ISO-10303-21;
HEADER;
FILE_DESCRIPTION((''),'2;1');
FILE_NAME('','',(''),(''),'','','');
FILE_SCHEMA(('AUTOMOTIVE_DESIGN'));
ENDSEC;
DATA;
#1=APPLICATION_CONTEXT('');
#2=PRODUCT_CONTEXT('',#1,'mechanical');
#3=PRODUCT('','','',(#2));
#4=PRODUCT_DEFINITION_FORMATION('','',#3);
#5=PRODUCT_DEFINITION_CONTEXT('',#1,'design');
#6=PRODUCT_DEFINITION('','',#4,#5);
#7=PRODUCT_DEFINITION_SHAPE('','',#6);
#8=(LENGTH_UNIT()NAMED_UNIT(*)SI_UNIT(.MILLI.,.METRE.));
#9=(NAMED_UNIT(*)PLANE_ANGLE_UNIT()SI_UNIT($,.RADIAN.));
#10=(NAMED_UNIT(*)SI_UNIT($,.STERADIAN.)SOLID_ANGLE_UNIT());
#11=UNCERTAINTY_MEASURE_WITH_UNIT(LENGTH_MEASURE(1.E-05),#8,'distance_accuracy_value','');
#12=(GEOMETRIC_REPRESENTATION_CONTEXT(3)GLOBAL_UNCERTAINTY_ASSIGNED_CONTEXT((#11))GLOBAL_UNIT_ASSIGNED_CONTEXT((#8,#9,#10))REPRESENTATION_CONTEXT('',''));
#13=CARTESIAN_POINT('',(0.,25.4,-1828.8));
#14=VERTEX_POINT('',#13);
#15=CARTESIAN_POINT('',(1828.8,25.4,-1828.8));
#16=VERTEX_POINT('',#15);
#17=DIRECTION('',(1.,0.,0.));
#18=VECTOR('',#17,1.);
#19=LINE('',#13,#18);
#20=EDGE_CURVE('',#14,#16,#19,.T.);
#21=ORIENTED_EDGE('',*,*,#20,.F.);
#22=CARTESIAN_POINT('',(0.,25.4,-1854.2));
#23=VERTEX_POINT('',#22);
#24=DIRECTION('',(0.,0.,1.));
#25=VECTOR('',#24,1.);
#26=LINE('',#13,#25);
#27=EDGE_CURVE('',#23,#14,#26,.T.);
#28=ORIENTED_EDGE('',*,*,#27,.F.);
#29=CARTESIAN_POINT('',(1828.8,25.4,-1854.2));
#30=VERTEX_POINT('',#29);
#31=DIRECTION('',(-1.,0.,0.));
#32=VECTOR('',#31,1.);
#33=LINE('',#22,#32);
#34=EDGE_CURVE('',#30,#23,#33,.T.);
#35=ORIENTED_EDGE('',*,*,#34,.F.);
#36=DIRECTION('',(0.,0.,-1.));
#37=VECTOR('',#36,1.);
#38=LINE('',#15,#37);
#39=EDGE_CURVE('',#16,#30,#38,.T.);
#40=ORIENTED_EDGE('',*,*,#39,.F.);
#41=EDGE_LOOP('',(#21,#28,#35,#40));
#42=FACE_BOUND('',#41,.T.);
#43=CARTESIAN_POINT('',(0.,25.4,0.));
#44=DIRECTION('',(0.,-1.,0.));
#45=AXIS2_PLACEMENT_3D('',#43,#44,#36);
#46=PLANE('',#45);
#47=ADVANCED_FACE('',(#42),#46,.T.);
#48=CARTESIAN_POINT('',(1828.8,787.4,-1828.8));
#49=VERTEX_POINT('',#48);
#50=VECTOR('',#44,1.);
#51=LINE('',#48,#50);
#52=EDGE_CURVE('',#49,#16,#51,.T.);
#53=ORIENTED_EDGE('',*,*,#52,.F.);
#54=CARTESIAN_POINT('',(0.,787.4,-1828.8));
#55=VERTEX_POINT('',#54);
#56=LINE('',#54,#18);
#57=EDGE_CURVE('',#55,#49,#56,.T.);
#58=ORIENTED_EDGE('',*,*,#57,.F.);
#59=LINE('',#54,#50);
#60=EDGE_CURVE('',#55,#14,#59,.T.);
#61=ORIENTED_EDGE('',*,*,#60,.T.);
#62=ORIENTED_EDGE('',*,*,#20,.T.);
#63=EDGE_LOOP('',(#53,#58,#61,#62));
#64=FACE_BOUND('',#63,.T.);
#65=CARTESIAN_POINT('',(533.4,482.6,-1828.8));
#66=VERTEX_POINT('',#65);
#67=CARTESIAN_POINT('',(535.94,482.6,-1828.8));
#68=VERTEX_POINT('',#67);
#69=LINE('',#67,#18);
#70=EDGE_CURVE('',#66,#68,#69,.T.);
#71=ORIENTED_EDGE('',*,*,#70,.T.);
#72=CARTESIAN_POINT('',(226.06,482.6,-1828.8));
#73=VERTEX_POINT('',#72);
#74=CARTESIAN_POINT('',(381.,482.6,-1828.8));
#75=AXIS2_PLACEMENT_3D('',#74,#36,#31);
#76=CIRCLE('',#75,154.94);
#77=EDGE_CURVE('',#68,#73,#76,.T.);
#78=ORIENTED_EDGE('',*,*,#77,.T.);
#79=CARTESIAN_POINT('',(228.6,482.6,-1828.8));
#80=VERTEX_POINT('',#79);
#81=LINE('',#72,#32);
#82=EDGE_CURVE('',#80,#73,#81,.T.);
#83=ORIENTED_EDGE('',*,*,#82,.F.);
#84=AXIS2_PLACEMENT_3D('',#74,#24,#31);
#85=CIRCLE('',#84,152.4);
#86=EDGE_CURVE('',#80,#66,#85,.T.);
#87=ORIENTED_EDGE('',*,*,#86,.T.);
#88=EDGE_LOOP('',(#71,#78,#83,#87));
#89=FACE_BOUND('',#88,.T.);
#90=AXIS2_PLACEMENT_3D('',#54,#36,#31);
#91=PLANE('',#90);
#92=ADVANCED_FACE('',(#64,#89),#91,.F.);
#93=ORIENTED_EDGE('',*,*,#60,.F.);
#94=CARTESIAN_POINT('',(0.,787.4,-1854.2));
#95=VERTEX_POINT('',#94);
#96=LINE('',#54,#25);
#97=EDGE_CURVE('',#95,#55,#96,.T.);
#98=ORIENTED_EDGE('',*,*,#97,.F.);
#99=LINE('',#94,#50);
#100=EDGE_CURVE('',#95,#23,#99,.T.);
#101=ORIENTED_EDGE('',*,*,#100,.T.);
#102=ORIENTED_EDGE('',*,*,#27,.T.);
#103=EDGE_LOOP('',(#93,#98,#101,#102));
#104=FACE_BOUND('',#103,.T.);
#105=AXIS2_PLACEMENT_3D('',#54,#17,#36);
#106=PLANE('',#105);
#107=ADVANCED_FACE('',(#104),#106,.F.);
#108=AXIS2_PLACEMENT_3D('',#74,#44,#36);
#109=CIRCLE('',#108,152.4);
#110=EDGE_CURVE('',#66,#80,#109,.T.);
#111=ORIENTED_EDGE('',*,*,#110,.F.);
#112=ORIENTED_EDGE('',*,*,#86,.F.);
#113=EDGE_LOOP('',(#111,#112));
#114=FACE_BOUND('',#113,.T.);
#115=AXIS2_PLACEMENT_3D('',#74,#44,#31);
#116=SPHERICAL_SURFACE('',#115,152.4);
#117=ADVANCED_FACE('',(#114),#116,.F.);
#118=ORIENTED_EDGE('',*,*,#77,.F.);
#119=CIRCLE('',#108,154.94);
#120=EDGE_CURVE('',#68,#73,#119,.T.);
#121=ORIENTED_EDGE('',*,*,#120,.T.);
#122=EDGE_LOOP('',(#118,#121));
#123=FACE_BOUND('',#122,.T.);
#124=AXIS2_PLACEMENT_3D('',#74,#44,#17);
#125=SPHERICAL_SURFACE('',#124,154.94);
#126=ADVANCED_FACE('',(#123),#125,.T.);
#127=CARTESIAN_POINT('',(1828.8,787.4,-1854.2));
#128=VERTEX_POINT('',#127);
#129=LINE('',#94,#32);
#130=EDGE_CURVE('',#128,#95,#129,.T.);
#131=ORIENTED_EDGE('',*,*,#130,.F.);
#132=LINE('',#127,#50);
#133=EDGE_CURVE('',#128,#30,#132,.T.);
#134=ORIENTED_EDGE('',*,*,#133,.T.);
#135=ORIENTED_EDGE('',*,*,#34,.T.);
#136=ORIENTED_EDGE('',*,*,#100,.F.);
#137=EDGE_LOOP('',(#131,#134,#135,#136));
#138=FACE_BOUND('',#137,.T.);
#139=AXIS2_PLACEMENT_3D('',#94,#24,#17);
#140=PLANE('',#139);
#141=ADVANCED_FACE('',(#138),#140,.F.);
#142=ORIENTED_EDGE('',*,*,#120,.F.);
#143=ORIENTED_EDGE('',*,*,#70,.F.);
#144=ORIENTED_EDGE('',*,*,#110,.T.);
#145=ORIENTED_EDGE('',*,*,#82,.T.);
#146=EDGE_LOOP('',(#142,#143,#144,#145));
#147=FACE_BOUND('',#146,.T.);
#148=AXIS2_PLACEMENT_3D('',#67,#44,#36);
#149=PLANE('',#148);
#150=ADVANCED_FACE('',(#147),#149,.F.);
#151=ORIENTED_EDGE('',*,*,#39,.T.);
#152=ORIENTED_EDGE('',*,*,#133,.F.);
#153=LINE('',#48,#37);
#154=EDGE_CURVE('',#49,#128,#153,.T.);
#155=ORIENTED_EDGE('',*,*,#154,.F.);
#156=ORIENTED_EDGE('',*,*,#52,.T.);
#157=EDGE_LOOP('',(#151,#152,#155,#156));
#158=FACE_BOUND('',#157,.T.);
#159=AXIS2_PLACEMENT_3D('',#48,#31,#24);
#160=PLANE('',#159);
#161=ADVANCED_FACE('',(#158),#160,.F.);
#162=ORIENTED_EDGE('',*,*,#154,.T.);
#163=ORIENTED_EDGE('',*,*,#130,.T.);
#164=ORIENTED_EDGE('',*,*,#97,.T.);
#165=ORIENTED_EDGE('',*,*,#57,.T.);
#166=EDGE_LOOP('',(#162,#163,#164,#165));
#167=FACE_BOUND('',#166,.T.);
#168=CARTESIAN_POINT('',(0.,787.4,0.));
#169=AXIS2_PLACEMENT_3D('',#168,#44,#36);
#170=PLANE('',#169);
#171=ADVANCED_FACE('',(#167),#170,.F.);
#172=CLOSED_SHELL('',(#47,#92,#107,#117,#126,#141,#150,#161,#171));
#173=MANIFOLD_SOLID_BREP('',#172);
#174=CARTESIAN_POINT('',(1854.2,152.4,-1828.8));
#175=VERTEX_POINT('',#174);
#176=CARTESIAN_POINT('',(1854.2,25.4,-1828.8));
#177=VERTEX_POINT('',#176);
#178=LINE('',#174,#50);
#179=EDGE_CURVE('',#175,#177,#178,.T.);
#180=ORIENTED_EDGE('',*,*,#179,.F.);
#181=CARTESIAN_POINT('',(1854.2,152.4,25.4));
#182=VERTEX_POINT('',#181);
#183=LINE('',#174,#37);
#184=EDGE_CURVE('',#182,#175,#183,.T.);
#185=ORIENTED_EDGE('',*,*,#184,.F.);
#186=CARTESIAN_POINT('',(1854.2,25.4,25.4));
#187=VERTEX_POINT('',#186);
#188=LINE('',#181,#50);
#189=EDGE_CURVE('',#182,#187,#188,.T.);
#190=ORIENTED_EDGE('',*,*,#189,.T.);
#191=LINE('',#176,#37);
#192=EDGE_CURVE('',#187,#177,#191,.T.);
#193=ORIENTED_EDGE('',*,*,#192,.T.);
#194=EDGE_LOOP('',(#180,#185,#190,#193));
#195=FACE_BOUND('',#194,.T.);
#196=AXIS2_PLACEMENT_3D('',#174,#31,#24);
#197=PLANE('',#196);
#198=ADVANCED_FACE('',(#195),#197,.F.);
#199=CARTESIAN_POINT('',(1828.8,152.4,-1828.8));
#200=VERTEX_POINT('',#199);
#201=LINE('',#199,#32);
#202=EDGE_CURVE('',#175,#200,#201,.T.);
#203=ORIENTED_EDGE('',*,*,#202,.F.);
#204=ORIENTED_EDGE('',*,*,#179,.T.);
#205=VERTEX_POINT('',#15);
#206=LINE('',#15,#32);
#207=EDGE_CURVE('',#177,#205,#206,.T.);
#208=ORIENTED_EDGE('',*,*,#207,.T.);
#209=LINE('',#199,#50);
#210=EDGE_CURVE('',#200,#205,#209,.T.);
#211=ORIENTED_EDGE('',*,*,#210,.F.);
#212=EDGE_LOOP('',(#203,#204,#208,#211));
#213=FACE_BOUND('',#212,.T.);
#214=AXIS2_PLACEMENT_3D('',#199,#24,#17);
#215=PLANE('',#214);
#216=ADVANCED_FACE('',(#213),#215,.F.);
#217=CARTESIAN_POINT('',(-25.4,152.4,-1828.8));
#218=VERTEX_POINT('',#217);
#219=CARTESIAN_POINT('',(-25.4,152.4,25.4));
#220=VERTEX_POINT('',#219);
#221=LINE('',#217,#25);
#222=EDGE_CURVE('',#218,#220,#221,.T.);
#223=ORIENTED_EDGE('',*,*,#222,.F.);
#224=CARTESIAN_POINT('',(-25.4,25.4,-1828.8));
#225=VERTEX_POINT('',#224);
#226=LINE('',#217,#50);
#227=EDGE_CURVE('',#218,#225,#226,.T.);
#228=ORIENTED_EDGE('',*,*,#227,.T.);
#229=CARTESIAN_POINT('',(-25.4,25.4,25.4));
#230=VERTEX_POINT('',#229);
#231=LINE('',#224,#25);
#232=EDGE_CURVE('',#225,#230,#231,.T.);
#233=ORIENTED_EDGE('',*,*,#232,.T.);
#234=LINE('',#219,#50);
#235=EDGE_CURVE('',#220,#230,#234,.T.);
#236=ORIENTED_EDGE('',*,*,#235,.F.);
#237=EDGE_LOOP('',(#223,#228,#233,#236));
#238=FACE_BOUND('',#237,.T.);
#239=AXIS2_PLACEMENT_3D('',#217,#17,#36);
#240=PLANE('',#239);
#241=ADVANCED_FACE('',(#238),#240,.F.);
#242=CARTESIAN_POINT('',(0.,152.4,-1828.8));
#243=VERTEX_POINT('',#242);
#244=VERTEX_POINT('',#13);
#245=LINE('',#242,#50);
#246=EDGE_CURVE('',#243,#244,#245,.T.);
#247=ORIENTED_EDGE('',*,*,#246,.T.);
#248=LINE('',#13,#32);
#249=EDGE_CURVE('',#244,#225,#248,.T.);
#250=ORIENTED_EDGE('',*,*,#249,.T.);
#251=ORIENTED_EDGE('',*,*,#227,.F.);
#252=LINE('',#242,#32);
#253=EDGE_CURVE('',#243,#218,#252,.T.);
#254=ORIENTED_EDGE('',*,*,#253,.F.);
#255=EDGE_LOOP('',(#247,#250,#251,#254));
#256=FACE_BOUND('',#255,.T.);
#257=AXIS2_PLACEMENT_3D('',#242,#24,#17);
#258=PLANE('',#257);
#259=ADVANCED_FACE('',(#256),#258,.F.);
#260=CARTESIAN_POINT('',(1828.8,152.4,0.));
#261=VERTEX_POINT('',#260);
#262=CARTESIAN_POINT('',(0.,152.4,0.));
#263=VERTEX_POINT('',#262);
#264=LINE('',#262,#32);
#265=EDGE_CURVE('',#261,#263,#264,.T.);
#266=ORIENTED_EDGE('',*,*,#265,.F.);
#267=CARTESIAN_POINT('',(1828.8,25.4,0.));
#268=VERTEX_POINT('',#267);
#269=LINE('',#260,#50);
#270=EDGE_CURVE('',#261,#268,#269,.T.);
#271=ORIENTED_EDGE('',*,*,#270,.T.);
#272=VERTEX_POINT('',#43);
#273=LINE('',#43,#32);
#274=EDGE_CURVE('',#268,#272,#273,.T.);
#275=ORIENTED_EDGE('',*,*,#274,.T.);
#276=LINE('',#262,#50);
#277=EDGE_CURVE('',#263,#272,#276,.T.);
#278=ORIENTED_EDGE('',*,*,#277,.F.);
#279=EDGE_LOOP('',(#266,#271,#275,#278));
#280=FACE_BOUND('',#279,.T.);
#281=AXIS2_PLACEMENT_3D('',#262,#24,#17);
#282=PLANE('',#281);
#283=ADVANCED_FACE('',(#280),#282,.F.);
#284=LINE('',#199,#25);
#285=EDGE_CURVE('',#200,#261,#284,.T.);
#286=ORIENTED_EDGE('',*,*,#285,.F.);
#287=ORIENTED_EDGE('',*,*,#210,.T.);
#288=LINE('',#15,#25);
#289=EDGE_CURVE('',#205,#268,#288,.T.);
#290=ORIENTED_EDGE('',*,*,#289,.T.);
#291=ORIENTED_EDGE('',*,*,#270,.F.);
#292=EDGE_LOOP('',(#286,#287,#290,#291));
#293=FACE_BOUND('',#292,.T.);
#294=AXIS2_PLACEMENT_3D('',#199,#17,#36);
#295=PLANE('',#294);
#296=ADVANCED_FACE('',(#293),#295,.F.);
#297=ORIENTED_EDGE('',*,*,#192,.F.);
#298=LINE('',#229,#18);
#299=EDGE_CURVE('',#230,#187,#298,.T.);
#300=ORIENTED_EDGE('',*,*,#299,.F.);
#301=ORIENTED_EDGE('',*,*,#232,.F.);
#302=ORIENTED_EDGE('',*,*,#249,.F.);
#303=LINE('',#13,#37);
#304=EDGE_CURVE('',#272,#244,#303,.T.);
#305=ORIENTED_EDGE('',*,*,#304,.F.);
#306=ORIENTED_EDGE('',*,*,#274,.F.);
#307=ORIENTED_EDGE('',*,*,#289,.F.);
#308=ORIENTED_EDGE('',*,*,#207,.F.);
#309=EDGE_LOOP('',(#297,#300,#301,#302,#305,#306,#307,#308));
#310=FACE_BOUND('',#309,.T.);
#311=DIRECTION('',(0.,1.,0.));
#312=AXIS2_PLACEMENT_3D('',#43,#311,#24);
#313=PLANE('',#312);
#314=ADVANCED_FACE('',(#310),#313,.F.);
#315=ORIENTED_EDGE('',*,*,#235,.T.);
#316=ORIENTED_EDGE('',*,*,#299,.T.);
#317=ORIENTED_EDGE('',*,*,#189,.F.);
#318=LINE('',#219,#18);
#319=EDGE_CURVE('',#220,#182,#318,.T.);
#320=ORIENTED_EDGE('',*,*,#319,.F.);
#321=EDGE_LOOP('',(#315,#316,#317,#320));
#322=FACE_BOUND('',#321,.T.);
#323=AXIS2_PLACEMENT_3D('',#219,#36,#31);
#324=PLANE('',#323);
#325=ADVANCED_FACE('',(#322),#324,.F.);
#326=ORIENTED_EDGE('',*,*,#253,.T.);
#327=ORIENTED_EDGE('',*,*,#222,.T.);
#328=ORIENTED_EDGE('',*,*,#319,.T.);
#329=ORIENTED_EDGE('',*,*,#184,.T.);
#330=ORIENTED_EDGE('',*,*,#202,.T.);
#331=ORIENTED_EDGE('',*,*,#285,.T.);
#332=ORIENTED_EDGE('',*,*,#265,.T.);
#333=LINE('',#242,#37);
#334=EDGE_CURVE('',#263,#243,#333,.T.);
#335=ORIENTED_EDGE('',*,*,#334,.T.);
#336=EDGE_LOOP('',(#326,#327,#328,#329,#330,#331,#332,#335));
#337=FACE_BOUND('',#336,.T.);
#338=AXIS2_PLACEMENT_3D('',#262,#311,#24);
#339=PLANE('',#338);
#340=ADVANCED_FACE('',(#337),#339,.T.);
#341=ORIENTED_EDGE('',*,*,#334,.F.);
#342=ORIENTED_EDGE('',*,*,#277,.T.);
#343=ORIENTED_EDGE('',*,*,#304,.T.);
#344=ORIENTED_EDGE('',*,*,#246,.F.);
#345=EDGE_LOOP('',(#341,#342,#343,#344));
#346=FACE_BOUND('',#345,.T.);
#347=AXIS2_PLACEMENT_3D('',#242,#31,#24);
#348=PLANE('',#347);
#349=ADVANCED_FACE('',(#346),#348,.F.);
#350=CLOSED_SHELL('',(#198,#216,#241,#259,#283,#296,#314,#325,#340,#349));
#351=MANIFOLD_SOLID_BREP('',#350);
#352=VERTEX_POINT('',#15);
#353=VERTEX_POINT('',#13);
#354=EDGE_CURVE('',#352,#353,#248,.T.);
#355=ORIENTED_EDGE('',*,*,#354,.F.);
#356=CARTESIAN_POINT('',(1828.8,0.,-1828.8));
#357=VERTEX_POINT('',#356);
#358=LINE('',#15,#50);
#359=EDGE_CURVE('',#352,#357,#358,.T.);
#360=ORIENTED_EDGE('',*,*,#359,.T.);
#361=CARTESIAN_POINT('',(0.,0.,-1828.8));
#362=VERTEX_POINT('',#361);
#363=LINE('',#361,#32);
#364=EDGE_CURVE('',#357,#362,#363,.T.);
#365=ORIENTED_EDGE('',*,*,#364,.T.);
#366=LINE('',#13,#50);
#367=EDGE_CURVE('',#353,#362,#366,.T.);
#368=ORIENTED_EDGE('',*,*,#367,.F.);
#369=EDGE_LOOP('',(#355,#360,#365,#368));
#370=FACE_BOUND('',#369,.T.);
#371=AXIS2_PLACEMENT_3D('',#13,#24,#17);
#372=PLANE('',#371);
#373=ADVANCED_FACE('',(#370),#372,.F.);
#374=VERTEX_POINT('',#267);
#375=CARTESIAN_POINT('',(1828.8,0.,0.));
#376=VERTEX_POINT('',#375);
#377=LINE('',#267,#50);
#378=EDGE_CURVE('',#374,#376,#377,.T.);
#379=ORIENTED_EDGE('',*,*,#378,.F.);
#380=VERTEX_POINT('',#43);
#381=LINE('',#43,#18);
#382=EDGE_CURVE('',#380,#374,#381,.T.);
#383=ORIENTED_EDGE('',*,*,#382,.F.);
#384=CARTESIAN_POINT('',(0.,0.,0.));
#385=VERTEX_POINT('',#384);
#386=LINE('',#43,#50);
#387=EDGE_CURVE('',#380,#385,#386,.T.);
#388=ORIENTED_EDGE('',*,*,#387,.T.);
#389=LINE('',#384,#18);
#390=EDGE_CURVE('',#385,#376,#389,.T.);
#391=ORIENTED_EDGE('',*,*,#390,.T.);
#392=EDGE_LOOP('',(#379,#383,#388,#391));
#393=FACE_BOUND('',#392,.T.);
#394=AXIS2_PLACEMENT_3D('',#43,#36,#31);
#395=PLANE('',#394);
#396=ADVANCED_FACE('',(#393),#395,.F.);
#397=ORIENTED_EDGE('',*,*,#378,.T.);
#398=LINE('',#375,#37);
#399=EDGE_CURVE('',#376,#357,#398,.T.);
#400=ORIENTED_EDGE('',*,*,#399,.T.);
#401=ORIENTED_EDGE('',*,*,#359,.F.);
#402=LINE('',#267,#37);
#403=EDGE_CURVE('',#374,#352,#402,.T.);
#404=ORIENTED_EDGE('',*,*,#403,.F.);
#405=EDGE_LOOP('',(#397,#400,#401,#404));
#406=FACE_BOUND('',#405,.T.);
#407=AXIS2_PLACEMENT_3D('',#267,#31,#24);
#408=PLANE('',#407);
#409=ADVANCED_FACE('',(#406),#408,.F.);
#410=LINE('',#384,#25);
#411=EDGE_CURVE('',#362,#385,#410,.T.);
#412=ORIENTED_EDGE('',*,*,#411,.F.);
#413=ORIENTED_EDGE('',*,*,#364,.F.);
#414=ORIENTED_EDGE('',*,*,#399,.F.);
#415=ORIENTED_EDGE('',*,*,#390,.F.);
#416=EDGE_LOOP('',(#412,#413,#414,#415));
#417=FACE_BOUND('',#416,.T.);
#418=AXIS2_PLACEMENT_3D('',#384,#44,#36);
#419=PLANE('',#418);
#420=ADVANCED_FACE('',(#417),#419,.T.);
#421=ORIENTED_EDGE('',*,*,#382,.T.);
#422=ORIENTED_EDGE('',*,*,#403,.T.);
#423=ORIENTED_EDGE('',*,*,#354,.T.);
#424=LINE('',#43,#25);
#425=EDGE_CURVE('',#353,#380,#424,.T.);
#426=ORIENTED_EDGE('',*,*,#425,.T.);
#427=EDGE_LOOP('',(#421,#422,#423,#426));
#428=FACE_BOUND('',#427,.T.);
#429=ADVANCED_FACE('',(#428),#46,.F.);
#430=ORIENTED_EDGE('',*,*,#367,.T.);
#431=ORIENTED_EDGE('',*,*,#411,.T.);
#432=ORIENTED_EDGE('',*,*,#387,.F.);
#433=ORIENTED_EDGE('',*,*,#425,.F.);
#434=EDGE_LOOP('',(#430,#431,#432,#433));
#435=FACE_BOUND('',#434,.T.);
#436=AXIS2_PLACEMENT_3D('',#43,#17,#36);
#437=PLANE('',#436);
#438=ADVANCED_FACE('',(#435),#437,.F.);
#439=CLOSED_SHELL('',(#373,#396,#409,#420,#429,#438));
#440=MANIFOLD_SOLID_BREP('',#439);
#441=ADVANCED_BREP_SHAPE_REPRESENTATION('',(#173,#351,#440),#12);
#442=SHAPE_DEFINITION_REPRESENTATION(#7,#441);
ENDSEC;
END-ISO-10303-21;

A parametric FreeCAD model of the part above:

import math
import FreeCAD as App
import Part
import Sketcher
from FreeCAD import Vector
Q = App.Units.Quantity


def add_polygon(sketch, points):
    """Adds a closed chain of lines whose ends are joined by coincident constraints."""
    first, n = sketch.GeometryCount, len(points)
    for a, b in zip(points, points[1:] + points[:1]):
        sketch.addGeometry(Part.LineSegment(App.Vector(*a, 0), App.Vector(*b, 0)), False)
    for i in range(n):
        sketch.addConstraint(Sketcher.Constraint("Coincident", first + i, 2, first + (i + 1) % n, 1))

doc = App.newDocument("Part")
body = doc.addObject("PartDesign::Body", "Body")

sketch1 = doc.addObject("Sketcher::SketchObject", "Sketch")
body.addObject(sketch1)
sketch1.AttachmentSupport = (doc.XZ_Plane, [""])
sketch1.MapMode = "FlatFace"
add_polygon(sketch1, [(0, -1829), (0, 0), (1829, 0), (1829, -1829)])
sketch1.addConstraint([
    Sketcher.Constraint("Vertical", 0),
    Sketcher.Constraint("Horizontal", 1),
    Sketcher.Constraint("Vertical", 2),
    Sketcher.Constraint("Horizontal", 3),
    Sketcher.Constraint("Coincident", 0, 2, -1, 1),
    Sketcher.Constraint("Equal", 3, 0),
    Sketcher.Constraint("DistanceX", 1, 1, 1, 2, Q("72 in")),
])
pad1 = doc.addObject("PartDesign::Pad", "Pad")
body.addObject(pad1)
pad1.Profile = sketch1
pad1.Length = Q("1 in")
pad1.Reversed = True
body2 = doc.addObject("PartDesign::Body", "Body001")

sketch2 = doc.addObject("Sketcher::SketchObject", "Sketch001")
body2.addObject(sketch2)
sketch2.AttachmentSupport = (doc.getObject("XZ_Plane001"), [""])
sketch2.MapMode = "FlatFace"
sketch2.AttachmentOffset = App.Placement(Vector(0, 0, -1 * 25.4), App.Rotation())
add_polygon(sketch2, [(0, -1854), (0, -1829), (1829, -1829), (1829, -1854)])
sketch2.addConstraint([
    Sketcher.Constraint("Vertical", 0),
    Sketcher.Constraint("Horizontal", 1),
    Sketcher.Constraint("Vertical", 2),
    Sketcher.Constraint("Horizontal", 3),
    Sketcher.Constraint("PointOnObject", 0, 2, -2),
    Sketcher.Constraint("DistanceX", 1, 1, 1, 2, Q("72 in")),
    Sketcher.Constraint("DistanceY", 0, 1, 0, 2, Q("1 in")),
    Sketcher.Constraint("DistanceY", 0, 2, -1, 1, Q("72 in")),
])
pad2 = doc.addObject("PartDesign::Pad", "Pad001")
body2.addObject(pad2)
pad2.Profile = sketch2
pad2.Length = Q("30 in")
pad2.Reversed = True

sketch3 = doc.addObject("Sketcher::SketchObject", "Sketch002")
body2.addObject(sketch3)
sketch3.AttachmentSupport = (doc.getObject("XY_Plane001"), [""])
sketch3.MapMode = "FlatFace"
sketch3.AttachmentOffset = App.Placement(Vector(0, 0, -72 * 25.4), App.Rotation())
sketch3.addGeometry([
    Part.LineSegment(Vector(228.6, 482.6, 0), Vector(226.1, 482.6, 0)),
    Part.ArcOfCircle(Part.Circle(Vector(381, 482.6, 0), Vector(0, 0, 1), 154.9), math.radians(180), math.radians(270)),
    Part.LineSegment(Vector(381, 327.7, 0), Vector(381, 330.2, 0)),
    Part.ArcOfCircle(Part.Circle(Vector(381, 482.6, 0), Vector(0, 0, 1), 152.4), math.radians(180), math.radians(270)),
], False)
sketch3.addGeometry(Part.LineSegment(Vector(381, 327.7, 0), Vector(381, 482.6, 0)), True)
sketch3.addConstraint([
    Sketcher.Constraint("Coincident", 0, 2, 1, 1),
    Sketcher.Constraint("Coincident", 1, 2, 2, 1),
    Sketcher.Constraint("Coincident", 2, 2, 3, 2),
    Sketcher.Constraint("Coincident", 3, 1, 0, 1),
    Sketcher.Constraint("Horizontal", 0),
    Sketcher.Constraint("Vertical", 2),
    Sketcher.Constraint("Vertical", 4),
    Sketcher.Constraint("Coincident", 3, 3, 1, 3),
    Sketcher.Constraint("Coincident", 4, 1, 1, 2),
    Sketcher.Constraint("Coincident", 4, 2, 1, 3),
    Sketcher.Constraint("Horizontal", 3, 3, 0, 2),
    Sketcher.Constraint("Radius", 3, Q("6 in")),
    Sketcher.Constraint("Radius", 1, Q("6.1 in")),
    Sketcher.Constraint("DistanceX", -1, 1, 1, 3, Q("15 in")),
    Sketcher.Constraint("DistanceY", -1, 1, 1, 3, Q("19 in")),
])
revolution = doc.addObject("PartDesign::Revolution", "Revolution")
body2.addObject(revolution)
revolution.Profile = sketch3
revolution.ReferenceAxis = (sketch3, ["Axis0"])
revolution.Angle = 180
body3 = doc.addObject("PartDesign::Body", "Body002")

sketch4 = doc.addObject("Sketcher::SketchObject", "Sketch003")
body3.addObject(sketch4)
sketch4.AttachmentSupport = (doc.getObject("XZ_Plane002"), [""])
sketch4.MapMode = "FlatFace"
sketch4.AttachmentOffset = App.Placement(Vector(0, 0, -1 * 25.4), App.Rotation())
add_polygon(sketch4, [(0, -1829), (-25, -1829), (-25, 25), (1854, 25), (1854, -1829), (1829, -1829), (1829, 0), (0, 0)])
sketch4.addConstraint([
    Sketcher.Constraint("Horizontal", 0),
    Sketcher.Constraint("Vertical", 1),
    Sketcher.Constraint("Horizontal", 2),
    Sketcher.Constraint("Vertical", 3),
    Sketcher.Constraint("Horizontal", 4),
    Sketcher.Constraint("Vertical", 5),
    Sketcher.Constraint("Horizontal", 6),
    Sketcher.Constraint("Vertical", 7),
    Sketcher.Constraint("Coincident", 6, 2, -1, 1),
    Sketcher.Constraint("Horizontal", 0, 2, 3, 2),
    Sketcher.Constraint("Equal", 0, 4),
    Sketcher.Constraint("Equal", 6, 5),
    Sketcher.Constraint("DistanceX", 0, 2, 0, 1, Q("1 in")),
    Sketcher.Constraint("DistanceX", 2, 1, 2, 2, Q("74 in")),
    Sketcher.Constraint("DistanceY", 1, 1, 1, 2, Q("73 in")),
])
pad3 = doc.addObject("PartDesign::Pad", "Pad002")
body3.addObject(pad3)
pad3.Profile = sketch4
pad3.Length = Q("5 in")
pad3.Reversed = True

doc.recompute()
